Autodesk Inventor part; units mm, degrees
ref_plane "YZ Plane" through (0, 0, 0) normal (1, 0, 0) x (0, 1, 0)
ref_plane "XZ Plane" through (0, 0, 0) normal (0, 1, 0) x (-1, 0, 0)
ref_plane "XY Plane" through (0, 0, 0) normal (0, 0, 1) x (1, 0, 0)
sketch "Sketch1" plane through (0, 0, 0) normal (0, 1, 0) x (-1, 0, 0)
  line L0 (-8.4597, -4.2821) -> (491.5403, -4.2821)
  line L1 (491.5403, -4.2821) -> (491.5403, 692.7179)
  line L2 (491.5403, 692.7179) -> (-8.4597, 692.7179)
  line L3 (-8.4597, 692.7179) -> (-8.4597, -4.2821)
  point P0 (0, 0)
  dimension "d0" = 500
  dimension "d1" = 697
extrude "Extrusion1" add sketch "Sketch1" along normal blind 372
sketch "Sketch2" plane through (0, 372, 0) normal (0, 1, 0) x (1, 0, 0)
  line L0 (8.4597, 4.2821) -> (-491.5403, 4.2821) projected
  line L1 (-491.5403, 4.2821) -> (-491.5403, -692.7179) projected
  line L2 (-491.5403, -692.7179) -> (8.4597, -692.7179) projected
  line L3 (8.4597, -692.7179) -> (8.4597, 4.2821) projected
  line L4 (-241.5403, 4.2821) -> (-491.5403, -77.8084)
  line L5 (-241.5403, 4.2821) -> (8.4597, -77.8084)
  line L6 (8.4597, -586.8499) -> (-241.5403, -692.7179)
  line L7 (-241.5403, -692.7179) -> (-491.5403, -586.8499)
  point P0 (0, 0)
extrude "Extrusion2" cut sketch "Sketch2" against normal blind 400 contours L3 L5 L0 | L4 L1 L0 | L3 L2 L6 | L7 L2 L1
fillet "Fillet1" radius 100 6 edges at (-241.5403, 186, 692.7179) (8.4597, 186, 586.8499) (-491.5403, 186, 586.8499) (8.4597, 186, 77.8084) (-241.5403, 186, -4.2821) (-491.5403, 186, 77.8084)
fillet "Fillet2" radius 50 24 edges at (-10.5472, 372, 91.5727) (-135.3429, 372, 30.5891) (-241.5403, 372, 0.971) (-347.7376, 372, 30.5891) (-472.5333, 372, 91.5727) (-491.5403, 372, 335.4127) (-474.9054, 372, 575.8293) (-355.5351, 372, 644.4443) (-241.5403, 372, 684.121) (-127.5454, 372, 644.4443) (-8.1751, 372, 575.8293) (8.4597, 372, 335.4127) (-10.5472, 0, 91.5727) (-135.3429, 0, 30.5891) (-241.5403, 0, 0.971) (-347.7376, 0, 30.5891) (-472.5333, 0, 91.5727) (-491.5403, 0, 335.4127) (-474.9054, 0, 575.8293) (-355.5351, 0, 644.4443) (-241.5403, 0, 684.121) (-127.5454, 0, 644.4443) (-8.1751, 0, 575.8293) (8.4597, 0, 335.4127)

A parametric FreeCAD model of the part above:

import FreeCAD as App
import Part
import Sketcher

V = App.Vector


def edges_at(feature, points):
    """Names of the edges that pass closest to the given points."""
    edges = feature.Shape.Edges
    near = lambda p: min(range(len(edges)), key=lambda i: edges[i].distToShape(Part.Vertex(*p))[0])
    return sorted({f"Edge{near(p) + 1}" for p in points})

doc = App.newDocument("Part")
params = doc.addObject("Spreadsheet::Sheet", "Params")
for row, (alias, value) in enumerate([
    ("sketch1_width", "500 mm"),
    ("sketch1_height", "697 mm"),
    ("pad1_length", "372 mm"),
    ("sketch2_width", "250 mm"),
    ("pocket1_length", "400 mm"),
    ("fillet_radius", "100 mm"),
    ("fillet2_radius", "50 mm"),
], start=1):
    params.set(f"A{row}", alias)
    params.set(f"B{row}", "=" + value)
    params.setAlias(f"B{row}", alias)

body = doc.addObject("PartDesign::Body", "Body")

# Sketch on XZ plane
sketch1 = doc.addObject("Sketcher::SketchObject", "Sketch")
body.addObject(sketch1)
sketch1.AttachmentSupport = (doc.XZ_Plane, [""])
sketch1.MapMode = "FlatFace"
sketch1.addGeometry(Part.LineSegment(V(8, 693, 0), V(8, -4, 0)), False)
sketch1.addGeometry(Part.LineSegment(V(8, -4, 0), V(-492, -4, 0)), False)
sketch1.addGeometry(Part.LineSegment(V(-492, -4, 0), V(-492, 693, 0)), False)
sketch1.addGeometry(Part.LineSegment(V(-492, 693, 0), V(8, 693, 0)), False)
sketch1.addConstraint(Sketcher.Constraint("Coincident", 0, 2, 1, 1))
sketch1.addConstraint(Sketcher.Constraint("Coincident", 1, 2, 2, 1))
sketch1.addConstraint(Sketcher.Constraint("Coincident", 2, 2, 3, 1))
sketch1.addConstraint(Sketcher.Constraint("Coincident", 3, 2, 0, 1))
sketch1.addConstraint(Sketcher.Constraint("Vertical", 0))
sketch1.addConstraint(Sketcher.Constraint("Horizontal", 1))
sketch1.addConstraint(Sketcher.Constraint("Vertical", 2))
sketch1.addConstraint(Sketcher.Constraint("Horizontal", 3))
sketch1.addConstraint(Sketcher.Constraint("DistanceX", 1, 2, 1, 1, 500.0))
sketch1.addConstraint(Sketcher.Constraint("DistanceY", 0, 2, 0, 1, 697.0))
sketch1.addConstraint(Sketcher.Constraint("DistanceY", 0, 2, -1, 1, 4.282))
sketch1.addConstraint(Sketcher.Constraint("DistanceX", -1, 1, 0, 2, 8.4597))
sketch1.setExpression("Constraints[8]", "Params.sketch1_width")
sketch1.setExpression("Constraints[9]", "Params.sketch1_height")
pad1 = doc.addObject("PartDesign::Pad", "Pad")
body.addObject(pad1)
pad1.Profile = sketch1
pad1.setExpression("Length", "Params.pad1_length")
pad1.Reversed = True

# Sketch on XZ plane
sketch2 = doc.addObject("Sketcher::SketchObject", "Sketch001")
body.addObject(sketch2)
sketch2.AttachmentSupport = (doc.XZ_Plane, [""])
sketch2.MapMode = "FlatFace"
sketch2.AttachmentOffset = App.Placement(V(0, 0, -372), App.Rotation())
sketch2.addGeometry(Part.LineSegment(V(8, 78, 0), V(8, -4, 0)), False)
sketch2.addGeometry(Part.LineSegment(V(8, -4, 0), V(-242, -4, 0)), False)
sketch2.addGeometry(Part.LineSegment(V(-242, -4, 0), V(8, 78, 0)), False)
sketch2.addGeometry(Part.LineSegment(V(-492, 78, 0), V(-242, -4, 0)), False)
sketch2.addGeometry(Part.LineSegment(V(-242, -4, 0), V(-492, -4, 0)), False)
sketch2.addGeometry(Part.LineSegment(V(-492, -4, 0), V(-492, 78, 0)), False)
sketch2.addGeometry(Part.LineSegment(V(8, 693, 0), V(8, 587, 0)), False)
sketch2.addGeometry(Part.LineSegment(V(8, 587, 0), V(-242, 693, 0)), False)
sketch2.addGeometry(Part.LineSegment(V(-242, 693, 0), V(8, 693, 0)), False)
sketch2.addGeometry(Part.LineSegment(V(-242, 693, 0), V(-492, 587, 0)), False)
sketch2.addGeometry(Part.LineSegment(V(-492, 587, 0), V(-492, 693, 0)), False)
sketch2.addGeometry(Part.LineSegment(V(-492, 693, 0), V(-242, 693, 0)), False)
sketch2.addConstraint(Sketcher.Constraint("Coincident", 0, 2, 1, 1))
sketch2.addConstraint(Sketcher.Constraint("Coincident", 1, 2, 2, 1))
sketch2.addConstraint(Sketcher.Constraint("Coincident", 2, 2, 0, 1))
sketch2.addConstraint(Sketcher.Constraint("Coincident", 3, 2, 4, 1))
sketch2.addConstraint(Sketcher.Constraint("Coincident", 4, 2, 5, 1))
sketch2.addConstraint(Sketcher.Constraint("Coincident", 5, 2, 3, 1))
sketch2.addConstraint(Sketcher.Constraint("Coincident", 6, 2, 7, 1))
sketch2.addConstraint(Sketcher.Constraint("Coincident", 7, 2, 8, 1))
sketch2.addConstraint(Sketcher.Constraint("Coincident", 8, 2, 6, 1))
sketch2.addConstraint(Sketcher.Constraint("Coincident", 9, 2, 10, 1))
sketch2.addConstraint(Sketcher.Constraint("Coincident", 10, 2, 11, 1))
sketch2.addConstraint(Sketcher.Constraint("Coincident", 11, 2, 9, 1))
sketch2.addConstraint(Sketcher.Constraint("Vertical", 0))
sketch2.addConstraint(Sketcher.Constraint("Horizontal", 1))
sketch2.addConstraint(Sketcher.Constraint("Horizontal", 4))
sketch2.addConstraint(Sketcher.Constraint("Vertical", 5))
sketch2.addConstraint(Sketcher.Constraint("Vertical", 6))
sketch2.addConstraint(Sketcher.Constraint("Horizontal", 8))
sketch2.addConstraint(Sketcher.Constraint("Vertical", 10))
sketch2.addConstraint(Sketcher.Constraint("Horizontal", 11))
sketch2.addConstraint(Sketcher.Constraint("Coincident", 3, 2, 1, 2))
sketch2.addConstraint(Sketcher.Constraint("Coincident", 11, 2, 7, 2))
sketch2.addConstraint(Sketcher.Constraint("Horizontal", 2, 2, 5, 2))
sketch2.addConstraint(Sketcher.Constraint("Horizontal", 6, 2, 9, 2))
sketch2.addConstraint(Sketcher.Constraint("Vertical", 2, 2, 6, 2))
sketch2.addConstraint(Sketcher.Constraint("Vertical", 3, 2, 7, 2))
sketch2.addConstraint(Sketcher.Constraint("Vertical", 5, 2, 9, 2))
sketch2.addConstraint(Sketcher.Constraint("Equal", 1, 4))
sketch2.addConstraint(Sketcher.Constraint("DistanceX", 1, 2, 1, 1, 250.0))
sketch2.addConstraint(Sketcher.Constraint("DistanceY", 1, 2, 7, 2, 697.0))
sketch2.addConstraint(Sketcher.Constraint("DistanceY", 6, 2, 6, 1, 105.868))
sketch2.addConstraint(Sketcher.Constraint("DistanceY", -1, 1, 6, 2, 586.85))
sketch2.addConstraint(Sketcher.Constraint("DistanceY", 0, 2, 0, 1, 82.0905))
sketch2.addConstraint(Sketcher.Constraint("DistanceX", -1, 1, 0, 2, 8.4597))
sketch2.setExpression("Constraints[28]", "Params.sketch2_width")
pocket1 = doc.addObject("PartDesign::Pocket", "Pocket")
body.addObject(pocket1)
pocket1.Profile = sketch2
pocket1.setExpression("Length", "Params.pocket1_length")
pocket1.Reversed = True
doc.recompute()

fillet = doc.addObject("PartDesign::Fillet", "Fillet")
body.addObject(fillet)
fillet.Base = (pocket1, edges_at(pocket1, [
    (-241.54, 186, 692.718),
    (8.46, 186, 586.85),
    (-491.54, 186, 586.85),
    (8.46, 186, 77.808),
    (-241.54, 186, -4.282),
    (-491.54, 186, 77.808),
]))
fillet.setExpression("Radius", "Params.fillet_radius")
doc.recompute()

fillet2 = doc.addObject("PartDesign::Fillet", "Fillet001")
body.addObject(fillet2)
fillet2.Base = (fillet, edges_at(fillet, [
    (-10.547, 372, 91.573),
    (-135.343, 372, 30.589),
    (-241.54, 372, 0.971),
    (-347.738, 372, 30.589),
    (-472.533, 372, 91.573),
    (-491.54, 372, 335.413),
    (-474.905, 372, 575.829),
    (-355.535, 372, 644.444),
    (-241.54, 372, 684.121),
    (-127.545, 372, 644.444),
    (-8.175, 372, 575.829),
    (8.46, 372, 335.413),
    (-10.547, 0, 91.573),
    (-135.343, 0, 30.589),
    (-241.54, 0, 0.971),
    (-347.738, 0, 30.589),
    (-472.533, 0, 91.573),
    (-491.54, 0, 335.413),
    (-474.905, 0, 575.829),
    (-355.535, 0, 644.444),
    (-241.54, 0, 684.121),
    (-127.545, 0, 644.444),
    (-8.175, 0, 575.829),
    (8.46, 0, 335.413),
]))
fillet2.setExpression("Radius", "Params.fillet2_radius")

doc.recompute()
